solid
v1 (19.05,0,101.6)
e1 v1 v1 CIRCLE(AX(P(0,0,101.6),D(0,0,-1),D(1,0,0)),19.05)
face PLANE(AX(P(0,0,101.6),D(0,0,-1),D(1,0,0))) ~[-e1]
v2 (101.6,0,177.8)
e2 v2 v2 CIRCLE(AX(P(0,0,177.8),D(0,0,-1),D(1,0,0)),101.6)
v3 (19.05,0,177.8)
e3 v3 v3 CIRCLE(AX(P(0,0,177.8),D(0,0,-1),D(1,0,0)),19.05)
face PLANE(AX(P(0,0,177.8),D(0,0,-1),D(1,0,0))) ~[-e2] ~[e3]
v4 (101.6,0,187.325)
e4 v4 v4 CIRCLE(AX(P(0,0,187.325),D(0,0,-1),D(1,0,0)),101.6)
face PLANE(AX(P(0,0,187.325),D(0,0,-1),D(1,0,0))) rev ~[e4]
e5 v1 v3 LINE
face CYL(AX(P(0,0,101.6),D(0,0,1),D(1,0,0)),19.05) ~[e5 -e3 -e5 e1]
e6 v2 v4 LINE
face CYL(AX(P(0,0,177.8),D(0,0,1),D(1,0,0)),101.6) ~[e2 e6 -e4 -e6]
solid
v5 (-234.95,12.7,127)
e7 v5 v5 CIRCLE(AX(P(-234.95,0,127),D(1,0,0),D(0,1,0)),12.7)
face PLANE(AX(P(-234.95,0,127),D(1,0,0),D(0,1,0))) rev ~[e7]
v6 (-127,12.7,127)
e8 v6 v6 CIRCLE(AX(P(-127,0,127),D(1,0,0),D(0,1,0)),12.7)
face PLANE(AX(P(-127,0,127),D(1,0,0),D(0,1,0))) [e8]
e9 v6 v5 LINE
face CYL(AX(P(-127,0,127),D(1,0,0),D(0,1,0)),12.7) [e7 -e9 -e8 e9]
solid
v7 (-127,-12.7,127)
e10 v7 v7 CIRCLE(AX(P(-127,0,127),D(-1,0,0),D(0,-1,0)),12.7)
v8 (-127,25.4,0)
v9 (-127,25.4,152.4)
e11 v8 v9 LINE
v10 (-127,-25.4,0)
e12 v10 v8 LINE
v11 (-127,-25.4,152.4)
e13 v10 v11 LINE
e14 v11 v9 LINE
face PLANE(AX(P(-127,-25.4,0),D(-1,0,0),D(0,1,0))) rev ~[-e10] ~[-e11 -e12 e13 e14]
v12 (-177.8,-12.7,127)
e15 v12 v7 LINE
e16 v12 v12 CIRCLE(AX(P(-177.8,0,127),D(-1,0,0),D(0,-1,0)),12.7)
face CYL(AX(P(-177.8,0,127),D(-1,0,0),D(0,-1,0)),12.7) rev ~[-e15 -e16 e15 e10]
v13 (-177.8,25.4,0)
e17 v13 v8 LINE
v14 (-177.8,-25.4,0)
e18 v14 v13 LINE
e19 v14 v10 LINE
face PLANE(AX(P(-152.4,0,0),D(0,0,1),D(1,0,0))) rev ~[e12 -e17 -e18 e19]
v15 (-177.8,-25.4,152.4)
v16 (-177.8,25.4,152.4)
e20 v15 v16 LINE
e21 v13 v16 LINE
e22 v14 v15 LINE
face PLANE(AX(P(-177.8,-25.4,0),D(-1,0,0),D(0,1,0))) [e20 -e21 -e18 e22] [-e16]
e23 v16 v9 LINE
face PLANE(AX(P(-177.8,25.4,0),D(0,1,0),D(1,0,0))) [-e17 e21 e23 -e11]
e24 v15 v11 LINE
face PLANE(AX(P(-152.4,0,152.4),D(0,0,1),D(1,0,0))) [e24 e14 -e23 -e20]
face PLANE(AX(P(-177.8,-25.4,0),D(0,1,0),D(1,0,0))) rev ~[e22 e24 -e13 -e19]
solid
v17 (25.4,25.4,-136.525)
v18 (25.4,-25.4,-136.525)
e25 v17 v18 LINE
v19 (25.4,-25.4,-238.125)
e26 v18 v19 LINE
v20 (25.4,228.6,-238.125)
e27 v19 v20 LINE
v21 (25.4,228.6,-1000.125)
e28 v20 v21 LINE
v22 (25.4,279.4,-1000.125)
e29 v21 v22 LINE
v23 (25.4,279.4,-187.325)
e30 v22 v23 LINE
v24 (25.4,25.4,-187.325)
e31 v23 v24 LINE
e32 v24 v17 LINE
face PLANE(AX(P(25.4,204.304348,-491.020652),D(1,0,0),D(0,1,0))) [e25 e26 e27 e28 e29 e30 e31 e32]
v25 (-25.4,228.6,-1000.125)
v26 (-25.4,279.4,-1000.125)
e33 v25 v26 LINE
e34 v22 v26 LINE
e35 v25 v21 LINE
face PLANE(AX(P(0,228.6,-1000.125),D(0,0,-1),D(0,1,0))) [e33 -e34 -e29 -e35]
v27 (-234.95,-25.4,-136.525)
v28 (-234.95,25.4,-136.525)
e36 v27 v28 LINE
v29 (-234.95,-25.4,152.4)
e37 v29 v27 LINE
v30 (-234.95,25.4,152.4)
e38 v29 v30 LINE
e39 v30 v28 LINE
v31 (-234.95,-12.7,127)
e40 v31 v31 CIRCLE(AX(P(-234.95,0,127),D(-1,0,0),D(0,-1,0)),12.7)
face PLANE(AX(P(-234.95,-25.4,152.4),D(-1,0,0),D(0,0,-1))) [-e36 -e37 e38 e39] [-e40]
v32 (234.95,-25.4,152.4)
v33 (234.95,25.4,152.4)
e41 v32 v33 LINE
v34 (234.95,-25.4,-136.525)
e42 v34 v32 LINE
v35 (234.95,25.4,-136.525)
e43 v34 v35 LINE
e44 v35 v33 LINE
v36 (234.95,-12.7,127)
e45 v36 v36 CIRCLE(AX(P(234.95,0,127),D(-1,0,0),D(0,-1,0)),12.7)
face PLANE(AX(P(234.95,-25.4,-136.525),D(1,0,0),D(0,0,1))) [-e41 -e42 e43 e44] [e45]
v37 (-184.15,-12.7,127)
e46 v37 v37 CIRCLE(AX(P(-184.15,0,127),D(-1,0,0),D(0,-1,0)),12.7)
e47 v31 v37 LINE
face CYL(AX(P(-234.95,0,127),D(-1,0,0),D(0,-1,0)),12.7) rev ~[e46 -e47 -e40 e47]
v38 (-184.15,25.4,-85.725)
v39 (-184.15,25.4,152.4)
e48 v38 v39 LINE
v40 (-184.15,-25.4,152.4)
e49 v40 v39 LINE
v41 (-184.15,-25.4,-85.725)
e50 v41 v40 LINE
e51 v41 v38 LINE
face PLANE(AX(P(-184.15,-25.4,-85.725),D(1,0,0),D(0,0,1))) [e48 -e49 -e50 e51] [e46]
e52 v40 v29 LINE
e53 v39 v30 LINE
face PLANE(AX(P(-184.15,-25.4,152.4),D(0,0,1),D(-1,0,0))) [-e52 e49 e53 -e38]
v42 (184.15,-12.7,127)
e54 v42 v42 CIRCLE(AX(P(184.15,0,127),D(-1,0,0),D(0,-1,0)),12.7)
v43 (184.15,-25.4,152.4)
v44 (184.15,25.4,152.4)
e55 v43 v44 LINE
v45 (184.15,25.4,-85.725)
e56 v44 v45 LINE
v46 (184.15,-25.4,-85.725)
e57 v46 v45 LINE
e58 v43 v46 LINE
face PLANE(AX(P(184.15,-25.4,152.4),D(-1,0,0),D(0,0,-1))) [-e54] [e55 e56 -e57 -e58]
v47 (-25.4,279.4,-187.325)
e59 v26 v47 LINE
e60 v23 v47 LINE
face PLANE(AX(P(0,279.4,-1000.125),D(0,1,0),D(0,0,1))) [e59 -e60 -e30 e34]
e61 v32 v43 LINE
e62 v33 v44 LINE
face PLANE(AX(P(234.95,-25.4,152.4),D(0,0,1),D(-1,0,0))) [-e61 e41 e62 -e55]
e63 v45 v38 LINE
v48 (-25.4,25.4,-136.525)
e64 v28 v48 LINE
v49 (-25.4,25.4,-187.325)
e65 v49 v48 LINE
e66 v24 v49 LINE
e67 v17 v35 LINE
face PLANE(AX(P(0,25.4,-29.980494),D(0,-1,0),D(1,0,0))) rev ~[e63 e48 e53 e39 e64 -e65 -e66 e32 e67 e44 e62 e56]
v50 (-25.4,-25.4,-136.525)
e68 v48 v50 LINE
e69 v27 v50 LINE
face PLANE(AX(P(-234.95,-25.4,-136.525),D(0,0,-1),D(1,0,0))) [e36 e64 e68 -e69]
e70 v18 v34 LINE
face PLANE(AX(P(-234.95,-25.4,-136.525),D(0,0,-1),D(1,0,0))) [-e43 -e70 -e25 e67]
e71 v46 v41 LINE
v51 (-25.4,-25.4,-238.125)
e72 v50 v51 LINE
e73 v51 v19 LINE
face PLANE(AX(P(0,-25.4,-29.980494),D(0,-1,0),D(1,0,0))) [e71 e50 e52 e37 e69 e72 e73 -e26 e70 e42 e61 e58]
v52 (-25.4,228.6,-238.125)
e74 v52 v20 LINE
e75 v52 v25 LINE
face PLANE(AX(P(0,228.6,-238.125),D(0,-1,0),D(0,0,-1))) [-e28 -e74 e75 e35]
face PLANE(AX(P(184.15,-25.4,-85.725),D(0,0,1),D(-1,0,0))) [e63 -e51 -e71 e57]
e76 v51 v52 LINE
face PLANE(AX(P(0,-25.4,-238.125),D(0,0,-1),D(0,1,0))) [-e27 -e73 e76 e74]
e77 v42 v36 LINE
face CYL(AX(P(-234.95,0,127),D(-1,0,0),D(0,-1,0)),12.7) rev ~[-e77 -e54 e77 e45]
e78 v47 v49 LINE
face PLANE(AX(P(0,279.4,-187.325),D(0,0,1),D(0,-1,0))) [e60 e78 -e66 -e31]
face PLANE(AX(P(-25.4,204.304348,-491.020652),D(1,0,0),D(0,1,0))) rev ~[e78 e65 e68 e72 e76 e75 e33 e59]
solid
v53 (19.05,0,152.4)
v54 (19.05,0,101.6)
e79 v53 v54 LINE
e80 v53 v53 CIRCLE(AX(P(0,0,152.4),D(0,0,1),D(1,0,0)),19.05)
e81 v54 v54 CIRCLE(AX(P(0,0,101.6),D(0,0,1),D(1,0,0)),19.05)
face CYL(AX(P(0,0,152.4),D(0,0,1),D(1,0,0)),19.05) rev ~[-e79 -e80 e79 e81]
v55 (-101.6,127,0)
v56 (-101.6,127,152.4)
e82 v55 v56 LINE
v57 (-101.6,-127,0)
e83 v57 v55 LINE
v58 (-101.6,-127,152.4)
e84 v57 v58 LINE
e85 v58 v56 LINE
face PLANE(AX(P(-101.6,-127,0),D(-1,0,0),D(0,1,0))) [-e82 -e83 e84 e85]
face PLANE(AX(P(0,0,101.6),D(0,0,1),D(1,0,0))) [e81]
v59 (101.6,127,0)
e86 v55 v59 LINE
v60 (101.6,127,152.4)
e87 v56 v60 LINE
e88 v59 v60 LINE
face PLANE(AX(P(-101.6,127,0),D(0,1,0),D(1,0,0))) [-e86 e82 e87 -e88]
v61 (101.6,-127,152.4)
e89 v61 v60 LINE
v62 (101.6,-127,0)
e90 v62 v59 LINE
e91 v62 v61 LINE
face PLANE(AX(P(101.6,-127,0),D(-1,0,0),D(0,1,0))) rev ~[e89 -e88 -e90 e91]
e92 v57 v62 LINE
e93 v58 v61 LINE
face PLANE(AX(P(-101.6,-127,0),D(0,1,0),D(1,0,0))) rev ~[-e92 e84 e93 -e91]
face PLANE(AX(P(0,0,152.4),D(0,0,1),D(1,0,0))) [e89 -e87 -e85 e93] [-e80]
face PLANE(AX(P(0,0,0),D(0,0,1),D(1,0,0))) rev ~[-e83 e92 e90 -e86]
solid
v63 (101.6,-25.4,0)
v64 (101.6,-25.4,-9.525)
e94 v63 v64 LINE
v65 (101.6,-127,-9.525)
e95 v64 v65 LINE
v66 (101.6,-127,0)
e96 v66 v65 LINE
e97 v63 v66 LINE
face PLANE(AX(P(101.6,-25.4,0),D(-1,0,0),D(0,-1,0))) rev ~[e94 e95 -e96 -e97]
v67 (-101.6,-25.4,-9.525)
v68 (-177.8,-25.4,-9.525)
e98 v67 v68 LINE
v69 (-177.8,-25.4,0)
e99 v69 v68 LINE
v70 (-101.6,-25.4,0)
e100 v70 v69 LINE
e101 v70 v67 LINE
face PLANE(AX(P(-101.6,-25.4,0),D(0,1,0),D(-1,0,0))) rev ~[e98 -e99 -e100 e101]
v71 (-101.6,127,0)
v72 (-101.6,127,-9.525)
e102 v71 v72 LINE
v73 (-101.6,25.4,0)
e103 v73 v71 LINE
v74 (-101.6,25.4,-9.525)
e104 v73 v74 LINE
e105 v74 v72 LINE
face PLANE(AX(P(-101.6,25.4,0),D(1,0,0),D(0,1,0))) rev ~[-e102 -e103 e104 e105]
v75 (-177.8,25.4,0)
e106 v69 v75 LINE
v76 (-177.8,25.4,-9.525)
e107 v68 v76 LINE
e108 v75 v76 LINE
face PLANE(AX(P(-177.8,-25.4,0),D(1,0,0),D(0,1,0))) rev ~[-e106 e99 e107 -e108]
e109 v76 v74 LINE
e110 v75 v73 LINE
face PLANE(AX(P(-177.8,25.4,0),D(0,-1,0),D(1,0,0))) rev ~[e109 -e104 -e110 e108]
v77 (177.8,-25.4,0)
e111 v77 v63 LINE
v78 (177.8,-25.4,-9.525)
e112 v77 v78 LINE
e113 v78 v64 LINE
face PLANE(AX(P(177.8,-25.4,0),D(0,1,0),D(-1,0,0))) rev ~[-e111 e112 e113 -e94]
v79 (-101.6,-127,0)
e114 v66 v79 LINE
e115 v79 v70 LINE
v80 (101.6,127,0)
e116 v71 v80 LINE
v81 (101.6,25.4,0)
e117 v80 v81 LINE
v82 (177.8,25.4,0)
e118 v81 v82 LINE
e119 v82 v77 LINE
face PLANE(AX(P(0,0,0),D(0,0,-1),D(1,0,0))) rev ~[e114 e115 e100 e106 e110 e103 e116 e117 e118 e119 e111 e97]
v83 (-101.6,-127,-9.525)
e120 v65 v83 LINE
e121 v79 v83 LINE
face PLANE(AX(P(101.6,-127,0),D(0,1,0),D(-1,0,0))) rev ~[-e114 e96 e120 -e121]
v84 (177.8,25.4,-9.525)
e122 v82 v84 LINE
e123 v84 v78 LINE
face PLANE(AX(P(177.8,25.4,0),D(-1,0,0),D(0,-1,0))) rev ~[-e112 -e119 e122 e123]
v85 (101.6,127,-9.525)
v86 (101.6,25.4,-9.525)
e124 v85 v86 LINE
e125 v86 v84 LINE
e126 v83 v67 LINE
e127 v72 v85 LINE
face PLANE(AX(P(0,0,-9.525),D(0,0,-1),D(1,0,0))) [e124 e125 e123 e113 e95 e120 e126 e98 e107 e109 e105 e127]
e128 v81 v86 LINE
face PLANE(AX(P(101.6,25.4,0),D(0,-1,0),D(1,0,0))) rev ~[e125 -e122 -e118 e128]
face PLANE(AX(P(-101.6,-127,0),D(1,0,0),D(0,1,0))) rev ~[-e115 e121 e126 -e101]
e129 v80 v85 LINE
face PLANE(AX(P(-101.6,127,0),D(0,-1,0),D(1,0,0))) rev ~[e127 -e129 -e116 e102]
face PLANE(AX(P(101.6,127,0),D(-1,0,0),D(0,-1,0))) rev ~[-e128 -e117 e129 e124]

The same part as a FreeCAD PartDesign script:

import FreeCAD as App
import Part
import Sketcher

V = App.Vector
Q = App.Units.Quantity


def add_polygon(sketch, points):
    """Adds a closed chain of lines whose ends are joined by coincident constraints."""
    first, n = sketch.GeometryCount, len(points)
    for a, b in zip(points, points[1:] + points[:1]):
        sketch.addGeometry(Part.LineSegment(App.Vector(*a, 0), App.Vector(*b, 0)), False)
    for i in range(n):
        sketch.addConstraint(Sketcher.Constraint("Coincident", first + i, 2, first + (i + 1) % n, 1))

doc = App.newDocument("Part")
body = doc.addObject("PartDesign::Body", "Body")

# Sketch on XY plane
sketch1 = body.newObject("Sketcher::SketchObject", "Sketch")
sketch1.AttachmentSupport = (doc.getObject("XY_Plane"), [""])
sketch1.MapMode = "FlatFace"
add_polygon(sketch1, [(-101.6, 127), (-101.6, -127), (101.6, -127), (101.6, 127)])  # lines 0-3
sketch1.addConstraint([
    Sketcher.Constraint("Vertical", 0),
    Sketcher.Constraint("Horizontal", 1),
    Sketcher.Constraint("Vertical", 2),
    Sketcher.Constraint("Horizontal", 3),
    Sketcher.Constraint("Symmetric", 0, 2, 2, 2, -1, 1),
    Sketcher.Constraint("DistanceX", 1, 1, 1, 2, Q("8 in")),
    Sketcher.Constraint("DistanceY", 0, 2, 0, 1, Q("10 in")),
])
pad1 = body.newObject("PartDesign::Pad", "Pad")
pad1.Profile = sketch1
pad1.Length = Q("6 in")

# Sketch on XY plane
sketch2 = body.newObject("Sketcher::SketchObject", "Sketch001")
sketch2.AttachmentSupport = (doc.getObject("XY_Plane"), [""])
sketch2.MapMode = "FlatFace"
sketch2.AttachmentOffset = App.Placement(V(0, 0, 6 * 25.4), App.Rotation())
sketch2.addGeometry(Part.Circle(V(0, 0, 0), V(0, 0, 1), 19.05), False)
sketch2.addConstraint([
    Sketcher.Constraint("Coincident", 0, 3, -1, 1),
    Sketcher.Constraint("Diameter", 0, Q("1.5 in")),
])
pocket1 = body.newObject("PartDesign::Pocket", "Pocket")
pocket1.Profile = sketch2
pocket1.Length = Q("2 in")
body2 = doc.addObject("PartDesign::Body", "Body001")

# Sketch on XZ plane
sketch3 = body2.newObject("Sketcher::SketchObject", "Sketch002")
sketch3.AttachmentSupport = (doc.getObject("XZ_Plane001"), [""])
sketch3.MapMode = "FlatFace"
add_polygon(sketch3, [(101.6, 187.325), (0, 187.325), (0, 101.6), (19.05, 101.6), (19.05, 177.8), (101.6, 177.8)])  # lines 0-5
sketch3.addConstraint([
    Sketcher.Constraint("Horizontal", 0),
    Sketcher.Constraint("Vertical", 1),
    Sketcher.Constraint("Horizontal", 2),
    Sketcher.Constraint("Vertical", 3),
    Sketcher.Constraint("Horizontal", 4),
    Sketcher.Constraint("Vertical", 5),
    Sketcher.Constraint("PointOnObject", 0, 2, -2),
    Sketcher.Constraint("DistanceX", 0, 2, 0, 1, Q("4 in")),
    Sketcher.Constraint("DistanceY", 3, 1, 3, 2, Q("3 in")),
    Sketcher.Constraint("DistanceY", -1, 1, 1, 2, Q("4 in")),
    Sketcher.Constraint("DistanceX", 2, 1, 2, 2, Q("0.75 in")),
    Sketcher.Constraint("DistanceY", 1, 2, 1, 1, Q("3.375 in")),
])
revolution = body2.newObject("PartDesign::Revolution", "Revolution")
revolution.Profile = sketch3
revolution.ReferenceAxis = (sketch3, ["V_Axis"])
revolution.Angle = 360
body3 = doc.addObject("PartDesign::Body", "Body002")

# Sketch on XY plane
sketch4 = body3.newObject("Sketcher::SketchObject", "Sketch003")
sketch4.AttachmentSupport = (doc.getObject("XY_Plane002"), [""])
sketch4.MapMode = "FlatFace"
add_polygon(sketch4, [(101.6, -127), (-101.6, -127), (-101.6, -25.4), (-177.8, -25.4), (-177.8, 25.4), (-101.6, 25.4), (-101.6, 127), (101.6, 127), (101.6, 25.4), (177.8, 25.4), (177.8, -25.4), (101.6, -25.4)])  # lines 0-11
sketch4.addConstraint([
    Sketcher.Constraint("Horizontal", 0),
    Sketcher.Constraint("Vertical", 1),
    Sketcher.Constraint("Horizontal", 2),
    Sketcher.Constraint("Vertical", 3),
    Sketcher.Constraint("Horizontal", 4),
    Sketcher.Constraint("Vertical", 5),
    Sketcher.Constraint("Horizontal", 6),
    Sketcher.Constraint("Vertical", 7),
    Sketcher.Constraint("Horizontal", 8),
    Sketcher.Constraint("Vertical", 9),
    Sketcher.Constraint("Horizontal", 10),
    Sketcher.Constraint("Vertical", 11),
    Sketcher.Constraint("Symmetric", 0, 2, 6, 2, -1, 1),
    Sketcher.Constraint("Symmetric", 2, 2, 8, 2, -1, 1),
    Sketcher.Constraint("Symmetric", 4, 2, 10, 2, -1, 1),
    Sketcher.Constraint("Symmetric", 4, 2, 7, 2, -2),
    Sketcher.Constraint("DistanceX", 0, 2, 0, 1, Q("8 in")),
    Sketcher.Constraint("DistanceX", 2, 2, 2, 1, Q("3 in")),
    Sketcher.Constraint("DistanceY", 1, 1, 1, 2, Q("4 in")),
    Sketcher.Constraint("DistanceY", 3, 1, 3, 2, Q("2 in")),
])
pad2 = body3.newObject("PartDesign::Pad", "Pad001")
pad2.Profile = sketch4
pad2.Length = Q("0.375 in")
pad2.Reversed = True
body4 = doc.addObject("PartDesign::Body", "Body003")

# Sketch on XY plane
sketch5 = body4.newObject("Sketcher::SketchObject", "Sketch004")
sketch5.AttachmentSupport = (doc.getObject("XY_Plane003"), [""])
sketch5.MapMode = "FlatFace"
add_polygon(sketch5, [(-177.8, 25.4), (-177.8, -25.4), (-127, -25.4), (-127, 25.4)])  # lines 0-3
sketch5.addConstraint([
    Sketcher.Constraint("Vertical", 0),
    Sketcher.Constraint("Horizontal", 1),
    Sketcher.Constraint("Vertical", 2),
    Sketcher.Constraint("Horizontal", 3),
    Sketcher.Constraint("Equal", 3, 0),
    Sketcher.Constraint("DistanceX", 1, 1, 1, 2, Q("2 in")),
    Sketcher.Constraint("DistanceX", 0, 2, -1, 1, Q("7 in")),
    Sketcher.Constraint("DistanceY", 0, 2, -1, 1, Q("1 in")),
])
pad3 = body4.newObject("PartDesign::Pad", "Pad002")
pad3.Profile = sketch5
pad3.Length = Q("6 in")

# Sketch on YZ plane
sketch6 = body4.newObject("Sketcher::SketchObject", "Sketch005")
sketch6.AttachmentSupport = (doc.getObject("YZ_Plane003"), [""])
sketch6.MapMode = "FlatFace"
sketch6.AttachmentOffset = App.Placement(V(0, 0, -7 * 25.4), App.Rotation())
sketch6.addGeometry(Part.Circle(V(0, 127, 0), V(0, 0, 1), 12.7), False)
sketch6.addConstraint([
    Sketcher.Constraint("PointOnObject", 0, 3, -2),
    Sketcher.Constraint("Diameter", 0, Q("1 in")),
    Sketcher.Constraint("DistanceY", -1, 1, 0, 3, Q("5 in")),
])
pocket2 = body4.newObject("PartDesign::Pocket", "Pocket001")
pocket2.Profile = sketch6
pocket2.Type = "ThroughAll"
pocket2.Reversed = True
body5 = doc.addObject("PartDesign::Body", "Body004")

# Sketch on YZ plane
sketch7 = body5.newObject("Sketcher::SketchObject", "Sketch006")
sketch7.AttachmentSupport = (doc.getObject("YZ_Plane004"), [""])
sketch7.MapMode = "FlatFace"
sketch7.AttachmentOffset = App.Placement(V(0, 0, -5 * 25.4), App.Rotation())
sketch7.addGeometry(Part.Circle(V(0, 127, 0), V(0, 0, 1), 12.7), False)
sketch7.addConstraint([
    Sketcher.Constraint("PointOnObject", 0, 3, -2),
    Sketcher.Constraint("Diameter", 0, Q("1 in")),
    Sketcher.Constraint("DistanceY", -1, 1, 0, 3, Q("5 in")),
])
pad4 = body5.newObject("PartDesign::Pad", "Pad003")
pad4.Profile = sketch7
pad4.Length = Q("4.25 in")
pad4.Reversed = True
body6 = doc.addObject("PartDesign::Body", "Body005")

# Sketch on XZ plane
sketch8 = body6.newObject("Sketcher::SketchObject", "Sketch007")
sketch8.AttachmentSupport = (doc.getObject("XZ_Plane005"), [""])
sketch8.MapMode = "FlatFace"
sketch8.AttachmentOffset = App.Placement(V(0, 0, 1 * 25.4), App.Rotation())
add_polygon(sketch8, [(-184.15, -85.725), (-184.15, 152.4), (-234.95, 152.4), (-234.95, -136.525), (234.95, -136.525), (234.95, 152.4), (184.15, 152.4), (184.15, -85.725)])  # lines 0-7
sketch8.addConstraint([
    Sketcher.Constraint("Vertical", 0),
    Sketcher.Constraint("Horizontal", 1),
    Sketcher.Constraint("Vertical", 2),
    Sketcher.Constraint("Horizontal", 3),
    Sketcher.Constraint("Vertical", 4),
    Sketcher.Constraint("Horizontal", 5),
    Sketcher.Constraint("Vertical", 6),
    Sketcher.Constraint("Horizontal", 7),
    Sketcher.Constraint("Symmetric", 1, 2, 4, 2, -2),
    Sketcher.Constraint("Equal", 1, 5),
    Sketcher.Constraint("DistanceX", 1, 2, 1, 1, Q("2 in")),
    Sketcher.Constraint("DistanceX", 3, 1, 3, 2, Q("18.5 in")),
    Sketcher.Constraint("DistanceY", -1, 1, 0, 2, Q("6 in")),
    Sketcher.Constraint("DistanceY", 3, 2, 6, 2, Q("2 in")),
    Sketcher.Constraint("DistanceY", 0, 1, 0, 2, Q("9.375 in")),
])
pad5 = body6.newObject("PartDesign::Pad", "Pad004")
pad5.Profile = sketch8
pad5.Length = Q("2 in")
pad5.Reversed = True

# Sketch on YZ plane
sketch9 = body6.newObject("Sketcher::SketchObject", "Sketch008")
sketch9.AttachmentSupport = (doc.getObject("YZ_Plane005"), [""])
sketch9.MapMode = "FlatFace"
sketch9.AttachmentOffset = App.Placement(V(0, 0, -9.25 * 25.4), App.Rotation())
sketch9.addGeometry(Part.Circle(V(0, 127, 0), V(0, 0, 1), 12.7), False)
sketch9.addConstraint([
    Sketcher.Constraint("PointOnObject", 0, 3, -2),
    Sketcher.Constraint("Diameter", 0, Q("1 in")),
    Sketcher.Constraint("DistanceY", -1, 1, 0, 3, Q("5 in")),
])
pocket3 = body6.newObject("PartDesign::Pocket", "Pocket002")
pocket3.Profile = sketch9
pocket3.Type = "ThroughAll"
pocket3.Reversed = True

# Sketch on YZ plane
sketch10 = body6.newObject("Sketcher::SketchObject", "Sketch009")
sketch10.AttachmentSupport = (doc.getObject("YZ_Plane005"), [""])
sketch10.MapMode = "FlatFace"
add_polygon(sketch10, [(25.4, -187.325), (25.4, -136.525), (-25.4, -136.525), (-25.4, -238.125), (228.6, -238.125), (228.6, -1000.125), (279.4, -1000.125), (279.4, -187.325)])  # lines 0-7
sketch10.addConstraint([
    Sketcher.Constraint("Vertical", 0),
    Sketcher.Constraint("Horizontal", 1),
    Sketcher.Constraint("Vertical", 2),
    Sketcher.Constraint("Horizontal", 3),
    Sketcher.Constraint("Vertical", 4),
    Sketcher.Constraint("Horizontal", 5),
    Sketcher.Constraint("Vertical", 6),
    Sketcher.Constraint("Horizontal", 7),
    Sketcher.Constraint("Equal", 1, 5),
    Sketcher.Constraint("Equal", 5, 0),
    Sketcher.Constraint("DistanceX", 1, 2, 1, 1, Q("2 in")),
    Sketcher.Constraint("DistanceX", 3, 1, 3, 2, Q("10 in")),
    Sketcher.Constraint("DistanceY", 2, 2, 2, 1, Q("4 in")),
    Sketcher.Constraint("DistanceY", 4, 2, 4, 1, Q("30 in")),
    Sketcher.Constraint("DistanceX", -1, 1, 0, 2, Q("1 in")),
    Sketcher.Constraint("DistanceY", 0, 2, -1, 1, Q("5.375 in")),
])
pad6 = body6.newObject("PartDesign::Pad", "Pad005")
pad6.Profile = sketch10
pad6.Length = Q("2 in")
pad6.Midplane = True

doc.recompute()
